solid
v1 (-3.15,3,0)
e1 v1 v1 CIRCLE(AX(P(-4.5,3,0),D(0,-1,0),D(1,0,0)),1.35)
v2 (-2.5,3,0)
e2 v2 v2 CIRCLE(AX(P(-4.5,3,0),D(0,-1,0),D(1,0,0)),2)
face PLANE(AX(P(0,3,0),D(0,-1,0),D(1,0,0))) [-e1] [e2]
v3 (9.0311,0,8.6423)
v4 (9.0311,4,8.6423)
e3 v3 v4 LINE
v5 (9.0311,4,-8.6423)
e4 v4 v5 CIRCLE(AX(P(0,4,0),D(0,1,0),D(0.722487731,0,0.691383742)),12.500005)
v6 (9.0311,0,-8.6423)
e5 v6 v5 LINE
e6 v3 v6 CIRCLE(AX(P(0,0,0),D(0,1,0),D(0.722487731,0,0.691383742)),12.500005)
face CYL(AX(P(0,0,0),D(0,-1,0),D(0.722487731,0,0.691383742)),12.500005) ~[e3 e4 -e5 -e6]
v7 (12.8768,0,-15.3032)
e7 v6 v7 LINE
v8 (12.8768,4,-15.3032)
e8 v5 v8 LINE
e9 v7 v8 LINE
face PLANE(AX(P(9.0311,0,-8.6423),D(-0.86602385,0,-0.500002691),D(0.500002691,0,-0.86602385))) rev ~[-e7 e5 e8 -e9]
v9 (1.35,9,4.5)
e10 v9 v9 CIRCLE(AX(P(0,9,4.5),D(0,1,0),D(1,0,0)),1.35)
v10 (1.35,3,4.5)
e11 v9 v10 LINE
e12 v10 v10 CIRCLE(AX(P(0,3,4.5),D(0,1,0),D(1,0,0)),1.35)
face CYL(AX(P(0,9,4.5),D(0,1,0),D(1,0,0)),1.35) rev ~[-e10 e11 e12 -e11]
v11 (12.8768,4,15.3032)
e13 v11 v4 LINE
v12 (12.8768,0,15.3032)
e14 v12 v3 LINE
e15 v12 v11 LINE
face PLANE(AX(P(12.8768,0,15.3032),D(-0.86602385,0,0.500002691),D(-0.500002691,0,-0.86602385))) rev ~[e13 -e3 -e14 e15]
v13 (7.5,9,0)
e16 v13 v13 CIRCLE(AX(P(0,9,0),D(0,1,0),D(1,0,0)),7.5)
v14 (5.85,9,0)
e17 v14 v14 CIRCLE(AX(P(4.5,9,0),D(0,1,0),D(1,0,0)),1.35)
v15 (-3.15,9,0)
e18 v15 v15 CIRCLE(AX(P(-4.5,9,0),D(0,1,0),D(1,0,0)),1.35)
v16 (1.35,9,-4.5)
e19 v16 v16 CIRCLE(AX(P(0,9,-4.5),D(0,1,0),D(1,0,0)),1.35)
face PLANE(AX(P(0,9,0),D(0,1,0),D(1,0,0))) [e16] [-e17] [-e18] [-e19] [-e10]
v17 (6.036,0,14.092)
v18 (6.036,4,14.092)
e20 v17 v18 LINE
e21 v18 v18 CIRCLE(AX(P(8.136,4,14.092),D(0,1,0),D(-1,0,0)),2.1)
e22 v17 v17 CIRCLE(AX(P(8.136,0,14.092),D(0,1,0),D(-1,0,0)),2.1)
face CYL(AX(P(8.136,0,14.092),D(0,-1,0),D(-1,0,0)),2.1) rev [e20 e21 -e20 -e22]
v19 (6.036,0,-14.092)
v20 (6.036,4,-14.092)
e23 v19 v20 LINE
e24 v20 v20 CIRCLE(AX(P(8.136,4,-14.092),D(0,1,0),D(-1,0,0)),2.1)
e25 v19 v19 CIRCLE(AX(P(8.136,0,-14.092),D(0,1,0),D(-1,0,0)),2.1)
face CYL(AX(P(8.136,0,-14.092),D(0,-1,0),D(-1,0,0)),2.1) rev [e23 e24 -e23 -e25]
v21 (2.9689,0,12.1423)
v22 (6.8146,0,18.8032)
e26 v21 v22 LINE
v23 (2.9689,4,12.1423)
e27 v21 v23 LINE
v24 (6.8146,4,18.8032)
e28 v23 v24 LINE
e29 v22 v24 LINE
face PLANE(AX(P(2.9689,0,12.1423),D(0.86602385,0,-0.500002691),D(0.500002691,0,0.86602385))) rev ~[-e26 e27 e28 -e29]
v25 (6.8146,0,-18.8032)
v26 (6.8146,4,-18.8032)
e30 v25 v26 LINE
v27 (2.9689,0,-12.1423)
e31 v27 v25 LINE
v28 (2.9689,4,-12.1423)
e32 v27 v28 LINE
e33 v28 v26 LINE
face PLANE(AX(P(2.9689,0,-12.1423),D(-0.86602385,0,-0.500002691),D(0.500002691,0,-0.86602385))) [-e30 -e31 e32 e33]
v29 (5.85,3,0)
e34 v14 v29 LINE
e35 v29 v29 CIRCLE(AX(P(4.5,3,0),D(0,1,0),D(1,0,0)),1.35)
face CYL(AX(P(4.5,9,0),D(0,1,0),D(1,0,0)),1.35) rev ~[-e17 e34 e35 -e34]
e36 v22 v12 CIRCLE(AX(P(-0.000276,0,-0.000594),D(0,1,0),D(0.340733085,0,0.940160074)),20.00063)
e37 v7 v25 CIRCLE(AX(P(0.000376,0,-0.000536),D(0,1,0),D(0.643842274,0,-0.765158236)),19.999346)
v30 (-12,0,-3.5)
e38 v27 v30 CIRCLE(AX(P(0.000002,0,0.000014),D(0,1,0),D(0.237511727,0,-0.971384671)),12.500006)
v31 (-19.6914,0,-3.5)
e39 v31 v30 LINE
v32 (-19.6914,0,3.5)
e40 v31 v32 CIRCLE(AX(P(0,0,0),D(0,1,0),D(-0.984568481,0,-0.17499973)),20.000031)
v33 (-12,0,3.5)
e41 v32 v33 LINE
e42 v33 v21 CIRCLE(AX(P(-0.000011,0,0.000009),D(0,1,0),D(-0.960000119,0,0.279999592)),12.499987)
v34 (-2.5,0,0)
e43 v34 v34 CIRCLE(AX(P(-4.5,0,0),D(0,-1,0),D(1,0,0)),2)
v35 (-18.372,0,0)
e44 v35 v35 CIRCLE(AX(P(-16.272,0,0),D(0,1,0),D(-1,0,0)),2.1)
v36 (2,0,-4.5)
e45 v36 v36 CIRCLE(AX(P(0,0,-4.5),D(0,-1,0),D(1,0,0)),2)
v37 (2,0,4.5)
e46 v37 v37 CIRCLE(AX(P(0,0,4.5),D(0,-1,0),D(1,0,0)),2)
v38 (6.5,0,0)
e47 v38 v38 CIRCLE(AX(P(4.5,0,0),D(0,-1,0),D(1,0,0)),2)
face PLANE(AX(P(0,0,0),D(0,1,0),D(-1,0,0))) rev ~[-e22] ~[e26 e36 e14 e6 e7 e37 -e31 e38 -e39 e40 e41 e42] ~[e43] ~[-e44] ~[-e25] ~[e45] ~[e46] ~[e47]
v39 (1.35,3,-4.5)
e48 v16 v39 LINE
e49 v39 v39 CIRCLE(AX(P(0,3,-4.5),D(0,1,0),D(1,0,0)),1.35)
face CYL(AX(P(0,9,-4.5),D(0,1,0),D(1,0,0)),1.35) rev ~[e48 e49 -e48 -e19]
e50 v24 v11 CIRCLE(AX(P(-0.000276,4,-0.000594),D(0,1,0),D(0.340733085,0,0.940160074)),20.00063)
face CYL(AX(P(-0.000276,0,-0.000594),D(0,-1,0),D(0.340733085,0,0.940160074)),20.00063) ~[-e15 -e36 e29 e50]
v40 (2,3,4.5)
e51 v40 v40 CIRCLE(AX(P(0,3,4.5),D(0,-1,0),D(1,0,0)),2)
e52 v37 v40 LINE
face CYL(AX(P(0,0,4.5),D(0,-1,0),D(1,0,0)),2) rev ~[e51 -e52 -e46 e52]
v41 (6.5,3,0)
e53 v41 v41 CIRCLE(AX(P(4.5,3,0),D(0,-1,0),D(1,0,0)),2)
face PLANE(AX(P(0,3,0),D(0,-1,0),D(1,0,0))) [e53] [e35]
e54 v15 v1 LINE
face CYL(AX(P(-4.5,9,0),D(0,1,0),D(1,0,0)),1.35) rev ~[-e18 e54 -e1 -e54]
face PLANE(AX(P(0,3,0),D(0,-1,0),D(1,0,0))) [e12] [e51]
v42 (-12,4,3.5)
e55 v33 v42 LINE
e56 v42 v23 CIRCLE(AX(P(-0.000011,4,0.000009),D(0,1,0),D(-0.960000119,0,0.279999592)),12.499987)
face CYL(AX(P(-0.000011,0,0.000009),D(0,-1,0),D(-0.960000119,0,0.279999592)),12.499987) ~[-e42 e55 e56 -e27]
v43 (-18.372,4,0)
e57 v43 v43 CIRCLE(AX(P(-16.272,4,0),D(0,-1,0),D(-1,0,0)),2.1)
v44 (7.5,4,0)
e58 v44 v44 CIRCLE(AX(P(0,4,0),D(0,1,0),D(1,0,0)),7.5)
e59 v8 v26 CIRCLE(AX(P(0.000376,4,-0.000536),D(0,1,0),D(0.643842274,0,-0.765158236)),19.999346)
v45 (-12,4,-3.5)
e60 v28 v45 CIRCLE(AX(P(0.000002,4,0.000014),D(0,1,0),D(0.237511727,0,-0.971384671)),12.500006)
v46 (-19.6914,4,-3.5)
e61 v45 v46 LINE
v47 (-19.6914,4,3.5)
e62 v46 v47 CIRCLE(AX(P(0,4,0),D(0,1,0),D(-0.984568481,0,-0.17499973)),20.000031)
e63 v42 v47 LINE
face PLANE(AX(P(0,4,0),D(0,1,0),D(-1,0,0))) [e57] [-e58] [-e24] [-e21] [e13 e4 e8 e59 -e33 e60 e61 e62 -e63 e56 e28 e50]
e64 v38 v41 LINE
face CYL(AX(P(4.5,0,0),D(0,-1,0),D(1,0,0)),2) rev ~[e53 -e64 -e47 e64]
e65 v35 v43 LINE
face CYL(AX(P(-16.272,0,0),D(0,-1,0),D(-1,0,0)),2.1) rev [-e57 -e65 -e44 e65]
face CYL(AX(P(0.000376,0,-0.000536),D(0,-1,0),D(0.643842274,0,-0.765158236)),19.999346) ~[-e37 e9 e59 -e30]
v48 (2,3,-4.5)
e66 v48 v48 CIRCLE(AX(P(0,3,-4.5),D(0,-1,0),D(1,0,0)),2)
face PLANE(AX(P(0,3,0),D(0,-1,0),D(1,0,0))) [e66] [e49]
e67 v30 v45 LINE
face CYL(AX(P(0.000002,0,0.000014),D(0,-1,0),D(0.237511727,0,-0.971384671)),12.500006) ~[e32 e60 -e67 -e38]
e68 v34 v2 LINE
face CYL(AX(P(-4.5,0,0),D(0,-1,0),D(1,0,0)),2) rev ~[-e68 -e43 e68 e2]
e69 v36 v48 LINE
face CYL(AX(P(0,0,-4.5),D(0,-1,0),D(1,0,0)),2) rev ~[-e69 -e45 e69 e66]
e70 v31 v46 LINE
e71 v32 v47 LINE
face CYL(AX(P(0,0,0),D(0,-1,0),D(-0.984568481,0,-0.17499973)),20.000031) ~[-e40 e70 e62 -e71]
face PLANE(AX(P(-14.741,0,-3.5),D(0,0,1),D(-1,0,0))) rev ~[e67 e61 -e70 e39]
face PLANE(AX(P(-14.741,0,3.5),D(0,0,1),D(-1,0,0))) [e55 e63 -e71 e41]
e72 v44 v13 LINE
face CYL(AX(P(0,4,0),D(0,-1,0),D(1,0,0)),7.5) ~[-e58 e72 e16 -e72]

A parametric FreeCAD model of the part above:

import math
import FreeCAD as App
import Part
import Sketcher
from FreeCAD import Vector
Q = App.Units.Quantity

doc = App.newDocument("Part")
body = doc.addObject("PartDesign::Body", "Body")

# Sketch on XZ plane
sketch1 = body.newObject("Sketcher::SketchObject", "Sketch")
sketch1.AttachmentSupport = (doc.getObject("XZ_Plane"), [""])
sketch1.MapMode = "FlatFace"
sketch1.addGeometry([
    Part.LineSegment(Vector(-19.6914, 3.5, 0), Vector(-12, 3.5, 0)),  # 0
    Part.ArcOfCircle(Part.Circle(Vector(0, 0, 0), Vector(0, 0, 1), 12.499993), math.radians(76.260249), math.radians(163.739795)),  # 1
    Part.LineSegment(Vector(2.9689, 12.1423, 0), Vector(6.8146, 18.8032, 0)),  # 2
    Part.ArcOfCircle(Part.Circle(Vector(0, 0, 0), Vector(0, 0, 1), 20.000031), math.radians(49.921236), math.radians(70.078621)),  # 3
    Part.LineSegment(Vector(12.8768, 15.3032, 0), Vector(9.0311, 8.6423, 0)),  # 4
    Part.ArcOfCircle(Part.Circle(Vector(0, 0, 0), Vector(0, 0, 1), 12.500005), math.radians(-43.739744), math.radians(43.739744)),  # 5
    Part.LineSegment(Vector(9.0311, -8.6423, 0), Vector(12.8768, -15.3032, 0)),  # 6
    Part.ArcOfCircle(Part.Circle(Vector(0, 0, 0), Vector(0, 0, 1), 19.999978), math.radians(-70.078621), math.radians(-49.921236)),  # 7
    Part.LineSegment(Vector(6.8146, -18.8032, 0), Vector(2.9689, -12.1423, 0)),  # 8
    Part.ArcOfCircle(Part.Circle(Vector(0, 0, 0), Vector(0, 0, 1), 12.500005), math.radians(-163.739795), math.radians(-76.260249)),  # 9
    Part.LineSegment(Vector(-12, -3.5, 0), Vector(-19.6914, -3.5, 0)),  # 10
    Part.ArcOfCircle(Part.Circle(Vector(0, 0, 0), Vector(0, 0, 1), 20.000031), math.radians(169.921358), math.radians(190.078642)),  # 11
    Part.Circle(Vector(8.136, -14.092, 0), Vector(0, 0, 1), 2.1),  # 12
    Part.Circle(Vector(8.136, 14.092, 0), Vector(0, 0, 1), 2.1),  # 13
    Part.Circle(Vector(-16.272, 0, 0), Vector(0, 0, 1), 2.1),  # 14
], False)
sketch1.addConstraint([
    Sketcher.Constraint("Coincident", 0, 2, 1, 2),
    Sketcher.Constraint("Coincident", 1, 1, 2, 1),
    Sketcher.Constraint("Coincident", 2, 2, 3, 2),
    Sketcher.Constraint("Coincident", 3, 1, 4, 1),
    Sketcher.Constraint("Coincident", 4, 2, 5, 2),
    Sketcher.Constraint("Coincident", 5, 1, 6, 1),
    Sketcher.Constraint("Coincident", 6, 2, 7, 2),
    Sketcher.Constraint("Coincident", 7, 1, 8, 1),
    Sketcher.Constraint("Coincident", 8, 2, 9, 2),
    Sketcher.Constraint("Coincident", 9, 1, 10, 1),
    Sketcher.Constraint("Coincident", 10, 2, 11, 2),
    Sketcher.Constraint("Coincident", 11, 1, 0, 1),
    Sketcher.Constraint("Horizontal", 0),
    Sketcher.Constraint("Horizontal", 10),
    Sketcher.Constraint("Coincident", 1, 3, -1, 1),
    Sketcher.Constraint("Coincident", 3, 3, -1, 1),
    Sketcher.Constraint("Coincident", 5, 3, -1, 1),
    Sketcher.Constraint("Coincident", 7, 3, -1, 1),
    Sketcher.Constraint("Coincident", 9, 3, -1, 1),
    Sketcher.Constraint("Coincident", 11, 3, -1, 1),
    Sketcher.Constraint("Equal", 1, 5),
    Sketcher.Constraint("Equal", 3, 7),
    Sketcher.Constraint("Equal", 5, 9),
    Sketcher.Constraint("Equal", 7, 11),
    Sketcher.Constraint("Equal", 12, 13),
    Sketcher.Constraint("Equal", 13, 14),
    Sketcher.Constraint("Symmetric", 12, 3, 13, 3, -1),
    Sketcher.Constraint("PointOnObject", 14, 3, -1),
    Sketcher.Constraint("Parallel", 2, 4),
    Sketcher.Constraint("Parallel", 6, 8),
    Sketcher.Constraint("Vertical", 4, 2, 5, 1),
    Sketcher.Constraint("Vertical", 3, 1, 6, 2),
    Sketcher.Constraint("Vertical", 2, 2, 7, 1),
    Sketcher.Constraint("Vertical", 0, 2, 9, 1),
    Sketcher.Constraint("Equal", 2, 4),
    Sketcher.Constraint("Diameter", 12, Q("4.2 mm")),
    Sketcher.Constraint("Radius", 3, Q("20 mm")),
    Sketcher.Constraint("Radius", 1, Q("12.5 mm")),
    Sketcher.Constraint("Angle", 2, Q("59.9998 deg")),
    Sketcher.Constraint("DistanceX", 14, 3, -1, 1, Q("16.272 mm")),
    Sketcher.Constraint("DistanceX", 0, 2, -1, 1, Q("12 mm")),
    Sketcher.Constraint("DistanceY", 3, 1, 2, 2, Q("3.5 mm")),
    Sketcher.Constraint("DistanceX", -1, 1, 12, 3, Q("8.136 mm")),
    Sketcher.Constraint("DistanceY", 12, 3, -1, 1, Q("14.092 mm")),
])
pad1 = body.newObject("PartDesign::Pad", "Pad")
pad1.Profile = sketch1
pad1.Length = 4
pad1.Reversed = True

# Sketch on XZ plane
sketch2 = body.newObject("Sketcher::SketchObject", "Sketch001")
sketch2.AttachmentSupport = (doc.getObject("XZ_Plane"), [""])
sketch2.MapMode = "FlatFace"
sketch2.AttachmentOffset = App.Placement(Vector(0, 0, -4), App.Rotation())
sketch2.addGeometry(Part.Circle(Vector(0, 0, 0), Vector(0, 0, 1), 7.5), False)
sketch2.addConstraint([
    Sketcher.Constraint("Coincident", 0, 3, -1, 1),
    Sketcher.Constraint("Diameter", 0, Q("15 mm")),
])
pad2 = body.newObject("PartDesign::Pad", "Pad001")
pad2.Profile = sketch2
pad2.Length = 5
pad2.Reversed = True

# Sketch on XZ plane
sketch3 = body.newObject("Sketcher::SketchObject", "Sketch002")
sketch3.AttachmentSupport = (doc.getObject("XZ_Plane"), [""])
sketch3.MapMode = "FlatFace"
sketch3.AttachmentOffset = App.Placement(Vector(0, 0, -9), App.Rotation())
sketch3.addGeometry([
    Part.Circle(Vector(-4.5, 0, 0), Vector(0, 0, 1), 1.35),
    Part.Circle(Vector(0, 4.5, 0), Vector(0, 0, 1), 1.35),
    Part.Circle(Vector(4.5, 0, 0), Vector(0, 0, 1), 1.35),
    Part.Circle(Vector(0, -4.5, 0), Vector(0, 0, 1), 1.35),
], False)
sketch3.addConstraint([
    Sketcher.Constraint("Equal", 0, 1),
    Sketcher.Constraint("Equal", 1, 2),
    Sketcher.Constraint("Equal", 2, 3),
    Sketcher.Constraint("Symmetric", 0, 3, 2, 3, -1, 1),
    Sketcher.Constraint("Symmetric", 1, 3, 3, 3, -1, 1),
    Sketcher.Constraint("PointOnObject", 0, 3, -1),
    Sketcher.Constraint("PointOnObject", 1, 3, -2),
    Sketcher.Constraint("Diameter", 0, Q("2.7 mm")),
    Sketcher.Constraint("DistanceX", 0, 3, 2, 3, Q("9 mm")),
    Sketcher.Constraint("DistanceY", 3, 3, 1, 3, Q("9 mm")),
])
pocket1 = body.newObject("PartDesign::Pocket", "Pocket")
pocket1.Profile = sketch3
pocket1.Type = "ThroughAll"
pocket1.Reversed = True

# Sketch on XZ plane
sketch4 = body.newObject("Sketcher::SketchObject", "Sketch003")
sketch4.AttachmentSupport = (doc.getObject("XZ_Plane"), [""])
sketch4.MapMode = "FlatFace"
sketch4.addGeometry([
    Part.Circle(Vector(-4.5, 0, 0), Vector(0, 0, 1), 2),  # 0
    Part.Circle(Vector(-4.5, 0, 0), Vector(0, 0, 1), 1.35),  # 1
    Part.Circle(Vector(0, -4.5, 0), Vector(0, 0, 1), 2),  # 2
    Part.Circle(Vector(4.5, 0, 0), Vector(0, 0, 1), 2),  # 3
    Part.Circle(Vector(0, 4.5, 0), Vector(0, 0, 1), 2),  # 4
], False)
sketch4.addConstraint([
    Sketcher.Constraint("Coincident", 1, 3, 0, 3),
    Sketcher.Constraint("Equal", 0, 2),
    Sketcher.Constraint("Equal", 2, 3),
    Sketcher.Constraint("Equal", 3, 4),
    Sketcher.Constraint("Symmetric", 0, 3, 3, 3, -1, 1),
    Sketcher.Constraint("Symmetric", 2, 3, 4, 3, -1, 1),
    Sketcher.Constraint("PointOnObject", 0, 3, -1),
    Sketcher.Constraint("PointOnObject", 2, 3, -2),
    Sketcher.Constraint("Diameter", 0, Q("4 mm")),
    Sketcher.Constraint("Diameter", 1, Q("2.7 mm")),
    Sketcher.Constraint("DistanceX", 0, 3, 3, 3, Q("9 mm")),
    Sketcher.Constraint("DistanceY", 2, 3, 4, 3, Q("9 mm")),
])
pocket2 = body.newObject("PartDesign::Pocket", "Pocket001")
pocket2.Profile = sketch4
pocket2.Length = 3

doc.recompute()
